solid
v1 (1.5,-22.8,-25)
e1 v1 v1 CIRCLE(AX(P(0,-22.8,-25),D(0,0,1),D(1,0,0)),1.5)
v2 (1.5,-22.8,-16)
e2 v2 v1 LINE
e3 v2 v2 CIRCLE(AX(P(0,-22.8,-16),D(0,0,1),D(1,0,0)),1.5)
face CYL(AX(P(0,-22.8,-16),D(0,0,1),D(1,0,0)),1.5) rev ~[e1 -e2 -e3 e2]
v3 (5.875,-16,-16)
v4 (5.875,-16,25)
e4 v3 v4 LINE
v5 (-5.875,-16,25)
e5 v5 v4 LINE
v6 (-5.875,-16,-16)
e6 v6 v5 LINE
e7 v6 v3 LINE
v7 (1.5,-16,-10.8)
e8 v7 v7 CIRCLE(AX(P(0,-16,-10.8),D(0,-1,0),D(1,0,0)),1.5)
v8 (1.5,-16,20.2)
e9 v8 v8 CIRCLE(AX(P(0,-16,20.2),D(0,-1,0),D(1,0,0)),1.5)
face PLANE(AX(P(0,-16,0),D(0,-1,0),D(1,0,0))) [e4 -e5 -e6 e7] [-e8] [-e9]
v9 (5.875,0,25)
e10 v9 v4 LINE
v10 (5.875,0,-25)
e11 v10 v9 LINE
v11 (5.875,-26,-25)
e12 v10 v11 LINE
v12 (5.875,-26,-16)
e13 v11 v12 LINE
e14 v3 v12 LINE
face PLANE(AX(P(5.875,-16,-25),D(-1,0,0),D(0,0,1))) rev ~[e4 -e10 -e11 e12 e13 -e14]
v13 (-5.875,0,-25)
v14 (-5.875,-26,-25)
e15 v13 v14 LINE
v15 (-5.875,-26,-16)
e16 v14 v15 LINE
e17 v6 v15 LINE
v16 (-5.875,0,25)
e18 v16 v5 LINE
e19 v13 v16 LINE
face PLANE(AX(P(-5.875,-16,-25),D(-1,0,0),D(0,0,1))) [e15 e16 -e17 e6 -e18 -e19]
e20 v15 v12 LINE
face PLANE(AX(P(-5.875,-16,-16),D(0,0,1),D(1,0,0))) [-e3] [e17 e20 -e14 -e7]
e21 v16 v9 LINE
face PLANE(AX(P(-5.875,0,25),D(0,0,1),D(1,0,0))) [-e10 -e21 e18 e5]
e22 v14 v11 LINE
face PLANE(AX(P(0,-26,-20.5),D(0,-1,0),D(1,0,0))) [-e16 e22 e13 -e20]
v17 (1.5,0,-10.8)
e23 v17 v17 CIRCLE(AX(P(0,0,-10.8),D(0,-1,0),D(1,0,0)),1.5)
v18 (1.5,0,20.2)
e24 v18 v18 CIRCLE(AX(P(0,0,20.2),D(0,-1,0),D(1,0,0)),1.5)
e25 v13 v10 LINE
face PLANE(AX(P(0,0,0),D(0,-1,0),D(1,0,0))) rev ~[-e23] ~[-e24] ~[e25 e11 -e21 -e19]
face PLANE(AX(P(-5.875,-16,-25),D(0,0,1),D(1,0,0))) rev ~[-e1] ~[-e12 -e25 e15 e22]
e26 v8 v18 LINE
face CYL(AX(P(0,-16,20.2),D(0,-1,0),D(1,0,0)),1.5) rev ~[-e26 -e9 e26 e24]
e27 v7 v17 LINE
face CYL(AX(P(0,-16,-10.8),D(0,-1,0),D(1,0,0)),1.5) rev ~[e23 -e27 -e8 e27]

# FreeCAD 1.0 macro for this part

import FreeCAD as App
import Part
import Sketcher
from FreeCAD import Vector
Q = App.Units.Quantity


def add_polygon(sketch, points):
    """Adds a closed chain of lines whose ends are joined by coincident constraints."""
    first, n = sketch.GeometryCount, len(points)
    for a, b in zip(points, points[1:] + points[:1]):
        sketch.addGeometry(Part.LineSegment(App.Vector(*a, 0), App.Vector(*b, 0)), False)
    for i in range(n):
        sketch.addConstraint(Sketcher.Constraint("Coincident", first + i, 2, first + (i + 1) % n, 1))

doc = App.newDocument("Part")
body = doc.addObject("PartDesign::Body", "Body")

# Sketch on XZ plane
sketch1 = body.newObject("Sketcher::SketchObject", "Sketch")
sketch1.AttachmentSupport = (doc.getObject("XZ_Plane"), [""])
sketch1.MapMode = "FlatFace"
add_polygon(sketch1, [(-5.875, 25), (-5.875, -25), (5.875, -25), (5.875, 25)])  # lines 0-3
sketch1.addConstraint([
    Sketcher.Constraint("Vertical", 0),
    Sketcher.Constraint("Horizontal", 1),
    Sketcher.Constraint("Vertical", 2),
    Sketcher.Constraint("Horizontal", 3),
    Sketcher.Constraint("Symmetric", 0, 2, 2, 2, -1, 1),
    Sketcher.Constraint("DistanceY", 0, 2, 0, 1, Q("50 mm")),
    Sketcher.Constraint("DistanceX", 1, 1, 1, 2, Q("11.75 mm")),
])
pad1 = body.newObject("PartDesign::Pad", "Pad")
pad1.Profile = sketch1
pad1.Length = 16

# Sketch on XZ plane
sketch2 = body.newObject("Sketcher::SketchObject", "Sketch001")
sketch2.AttachmentSupport = (doc.getObject("XZ_Plane"), [""])
sketch2.MapMode = "FlatFace"
sketch2.AttachmentOffset = App.Placement(Vector(0, 0, 16), App.Rotation())
sketch2.addGeometry([
    Part.Circle(Vector(0, 20.2, 0), Vector(0, 0, 1), 1.5),
    Part.Circle(Vector(0, -10.8, 0), Vector(0, 0, 1), 1.5),
], False)
sketch2.addConstraint([
    Sketcher.Constraint("Equal", 0, 1),
    Sketcher.Constraint("PointOnObject", 0, 3, -2),
    Sketcher.Constraint("PointOnObject", 1, 3, -2),
    Sketcher.Constraint("Diameter", 0, Q("3 mm")),
    Sketcher.Constraint("DistanceY", 1, 3, 0, 3, Q("31 mm")),
    Sketcher.Constraint("DistanceY", -1, 1, 0, 3, Q("20.2 mm")),
])
pocket1 = body.newObject("PartDesign::Pocket", "Pocket")
pocket1.Profile = sketch2
pocket1.Type = "ThroughAll"

# Sketch on XZ plane
sketch3 = body.newObject("Sketcher::SketchObject", "Sketch002")
sketch3.AttachmentSupport = (doc.getObject("XZ_Plane"), [""])
sketch3.MapMode = "FlatFace"
sketch3.AttachmentOffset = App.Placement(Vector(0, 0, 16), App.Rotation())
add_polygon(sketch3, [(-5.875, -16), (-5.875, -25), (5.875, -25), (5.875, -16)])  # lines 0-3
sketch3.addConstraint([
    Sketcher.Constraint("Vertical", 0),
    Sketcher.Constraint("Horizontal", 1),
    Sketcher.Constraint("Vertical", 2),
    Sketcher.Constraint("Horizontal", 3),
    Sketcher.Constraint("DistanceY", 0, 2, 0, 1, Q("9 mm")),
    Sketcher.Constraint("DistanceY", 0, 2, -1, 1, Q("25 mm")),
    Sketcher.Constraint("DistanceX", 1, 1, 1, 2, Q("11.75 mm")),
    Sketcher.Constraint("DistanceX", 0, 2, -1, 1, Q("5.875 mm")),
])
pad2 = body.newObject("PartDesign::Pad", "Pad001")
pad2.Profile = sketch3
pad2.Length = 10

# Sketch on XY plane
sketch4 = body.newObject("Sketcher::SketchObject", "Sketch003")
sketch4.AttachmentSupport = (doc.getObject("XY_Plane"), [""])
sketch4.MapMode = "FlatFace"
sketch4.AttachmentOffset = App.Placement(Vector(0, 0, -16), App.Rotation())
sketch4.addGeometry(Part.Circle(Vector(0, -22.8, 0), Vector(0, 0, 1), 1.5), False)
sketch4.addConstraint([
    Sketcher.Constraint("PointOnObject", 0, 3, -2),
    Sketcher.Constraint("Diameter", 0, Q("3 mm")),
    Sketcher.Constraint("DistanceY", 0, 3, -1, 1, Q("22.8 mm")),
])
pocket2 = body.newObject("PartDesign::Pocket", "Pocket001")
pocket2.Profile = sketch4
pocket2.Type = "ThroughAll"

doc.recompute()
